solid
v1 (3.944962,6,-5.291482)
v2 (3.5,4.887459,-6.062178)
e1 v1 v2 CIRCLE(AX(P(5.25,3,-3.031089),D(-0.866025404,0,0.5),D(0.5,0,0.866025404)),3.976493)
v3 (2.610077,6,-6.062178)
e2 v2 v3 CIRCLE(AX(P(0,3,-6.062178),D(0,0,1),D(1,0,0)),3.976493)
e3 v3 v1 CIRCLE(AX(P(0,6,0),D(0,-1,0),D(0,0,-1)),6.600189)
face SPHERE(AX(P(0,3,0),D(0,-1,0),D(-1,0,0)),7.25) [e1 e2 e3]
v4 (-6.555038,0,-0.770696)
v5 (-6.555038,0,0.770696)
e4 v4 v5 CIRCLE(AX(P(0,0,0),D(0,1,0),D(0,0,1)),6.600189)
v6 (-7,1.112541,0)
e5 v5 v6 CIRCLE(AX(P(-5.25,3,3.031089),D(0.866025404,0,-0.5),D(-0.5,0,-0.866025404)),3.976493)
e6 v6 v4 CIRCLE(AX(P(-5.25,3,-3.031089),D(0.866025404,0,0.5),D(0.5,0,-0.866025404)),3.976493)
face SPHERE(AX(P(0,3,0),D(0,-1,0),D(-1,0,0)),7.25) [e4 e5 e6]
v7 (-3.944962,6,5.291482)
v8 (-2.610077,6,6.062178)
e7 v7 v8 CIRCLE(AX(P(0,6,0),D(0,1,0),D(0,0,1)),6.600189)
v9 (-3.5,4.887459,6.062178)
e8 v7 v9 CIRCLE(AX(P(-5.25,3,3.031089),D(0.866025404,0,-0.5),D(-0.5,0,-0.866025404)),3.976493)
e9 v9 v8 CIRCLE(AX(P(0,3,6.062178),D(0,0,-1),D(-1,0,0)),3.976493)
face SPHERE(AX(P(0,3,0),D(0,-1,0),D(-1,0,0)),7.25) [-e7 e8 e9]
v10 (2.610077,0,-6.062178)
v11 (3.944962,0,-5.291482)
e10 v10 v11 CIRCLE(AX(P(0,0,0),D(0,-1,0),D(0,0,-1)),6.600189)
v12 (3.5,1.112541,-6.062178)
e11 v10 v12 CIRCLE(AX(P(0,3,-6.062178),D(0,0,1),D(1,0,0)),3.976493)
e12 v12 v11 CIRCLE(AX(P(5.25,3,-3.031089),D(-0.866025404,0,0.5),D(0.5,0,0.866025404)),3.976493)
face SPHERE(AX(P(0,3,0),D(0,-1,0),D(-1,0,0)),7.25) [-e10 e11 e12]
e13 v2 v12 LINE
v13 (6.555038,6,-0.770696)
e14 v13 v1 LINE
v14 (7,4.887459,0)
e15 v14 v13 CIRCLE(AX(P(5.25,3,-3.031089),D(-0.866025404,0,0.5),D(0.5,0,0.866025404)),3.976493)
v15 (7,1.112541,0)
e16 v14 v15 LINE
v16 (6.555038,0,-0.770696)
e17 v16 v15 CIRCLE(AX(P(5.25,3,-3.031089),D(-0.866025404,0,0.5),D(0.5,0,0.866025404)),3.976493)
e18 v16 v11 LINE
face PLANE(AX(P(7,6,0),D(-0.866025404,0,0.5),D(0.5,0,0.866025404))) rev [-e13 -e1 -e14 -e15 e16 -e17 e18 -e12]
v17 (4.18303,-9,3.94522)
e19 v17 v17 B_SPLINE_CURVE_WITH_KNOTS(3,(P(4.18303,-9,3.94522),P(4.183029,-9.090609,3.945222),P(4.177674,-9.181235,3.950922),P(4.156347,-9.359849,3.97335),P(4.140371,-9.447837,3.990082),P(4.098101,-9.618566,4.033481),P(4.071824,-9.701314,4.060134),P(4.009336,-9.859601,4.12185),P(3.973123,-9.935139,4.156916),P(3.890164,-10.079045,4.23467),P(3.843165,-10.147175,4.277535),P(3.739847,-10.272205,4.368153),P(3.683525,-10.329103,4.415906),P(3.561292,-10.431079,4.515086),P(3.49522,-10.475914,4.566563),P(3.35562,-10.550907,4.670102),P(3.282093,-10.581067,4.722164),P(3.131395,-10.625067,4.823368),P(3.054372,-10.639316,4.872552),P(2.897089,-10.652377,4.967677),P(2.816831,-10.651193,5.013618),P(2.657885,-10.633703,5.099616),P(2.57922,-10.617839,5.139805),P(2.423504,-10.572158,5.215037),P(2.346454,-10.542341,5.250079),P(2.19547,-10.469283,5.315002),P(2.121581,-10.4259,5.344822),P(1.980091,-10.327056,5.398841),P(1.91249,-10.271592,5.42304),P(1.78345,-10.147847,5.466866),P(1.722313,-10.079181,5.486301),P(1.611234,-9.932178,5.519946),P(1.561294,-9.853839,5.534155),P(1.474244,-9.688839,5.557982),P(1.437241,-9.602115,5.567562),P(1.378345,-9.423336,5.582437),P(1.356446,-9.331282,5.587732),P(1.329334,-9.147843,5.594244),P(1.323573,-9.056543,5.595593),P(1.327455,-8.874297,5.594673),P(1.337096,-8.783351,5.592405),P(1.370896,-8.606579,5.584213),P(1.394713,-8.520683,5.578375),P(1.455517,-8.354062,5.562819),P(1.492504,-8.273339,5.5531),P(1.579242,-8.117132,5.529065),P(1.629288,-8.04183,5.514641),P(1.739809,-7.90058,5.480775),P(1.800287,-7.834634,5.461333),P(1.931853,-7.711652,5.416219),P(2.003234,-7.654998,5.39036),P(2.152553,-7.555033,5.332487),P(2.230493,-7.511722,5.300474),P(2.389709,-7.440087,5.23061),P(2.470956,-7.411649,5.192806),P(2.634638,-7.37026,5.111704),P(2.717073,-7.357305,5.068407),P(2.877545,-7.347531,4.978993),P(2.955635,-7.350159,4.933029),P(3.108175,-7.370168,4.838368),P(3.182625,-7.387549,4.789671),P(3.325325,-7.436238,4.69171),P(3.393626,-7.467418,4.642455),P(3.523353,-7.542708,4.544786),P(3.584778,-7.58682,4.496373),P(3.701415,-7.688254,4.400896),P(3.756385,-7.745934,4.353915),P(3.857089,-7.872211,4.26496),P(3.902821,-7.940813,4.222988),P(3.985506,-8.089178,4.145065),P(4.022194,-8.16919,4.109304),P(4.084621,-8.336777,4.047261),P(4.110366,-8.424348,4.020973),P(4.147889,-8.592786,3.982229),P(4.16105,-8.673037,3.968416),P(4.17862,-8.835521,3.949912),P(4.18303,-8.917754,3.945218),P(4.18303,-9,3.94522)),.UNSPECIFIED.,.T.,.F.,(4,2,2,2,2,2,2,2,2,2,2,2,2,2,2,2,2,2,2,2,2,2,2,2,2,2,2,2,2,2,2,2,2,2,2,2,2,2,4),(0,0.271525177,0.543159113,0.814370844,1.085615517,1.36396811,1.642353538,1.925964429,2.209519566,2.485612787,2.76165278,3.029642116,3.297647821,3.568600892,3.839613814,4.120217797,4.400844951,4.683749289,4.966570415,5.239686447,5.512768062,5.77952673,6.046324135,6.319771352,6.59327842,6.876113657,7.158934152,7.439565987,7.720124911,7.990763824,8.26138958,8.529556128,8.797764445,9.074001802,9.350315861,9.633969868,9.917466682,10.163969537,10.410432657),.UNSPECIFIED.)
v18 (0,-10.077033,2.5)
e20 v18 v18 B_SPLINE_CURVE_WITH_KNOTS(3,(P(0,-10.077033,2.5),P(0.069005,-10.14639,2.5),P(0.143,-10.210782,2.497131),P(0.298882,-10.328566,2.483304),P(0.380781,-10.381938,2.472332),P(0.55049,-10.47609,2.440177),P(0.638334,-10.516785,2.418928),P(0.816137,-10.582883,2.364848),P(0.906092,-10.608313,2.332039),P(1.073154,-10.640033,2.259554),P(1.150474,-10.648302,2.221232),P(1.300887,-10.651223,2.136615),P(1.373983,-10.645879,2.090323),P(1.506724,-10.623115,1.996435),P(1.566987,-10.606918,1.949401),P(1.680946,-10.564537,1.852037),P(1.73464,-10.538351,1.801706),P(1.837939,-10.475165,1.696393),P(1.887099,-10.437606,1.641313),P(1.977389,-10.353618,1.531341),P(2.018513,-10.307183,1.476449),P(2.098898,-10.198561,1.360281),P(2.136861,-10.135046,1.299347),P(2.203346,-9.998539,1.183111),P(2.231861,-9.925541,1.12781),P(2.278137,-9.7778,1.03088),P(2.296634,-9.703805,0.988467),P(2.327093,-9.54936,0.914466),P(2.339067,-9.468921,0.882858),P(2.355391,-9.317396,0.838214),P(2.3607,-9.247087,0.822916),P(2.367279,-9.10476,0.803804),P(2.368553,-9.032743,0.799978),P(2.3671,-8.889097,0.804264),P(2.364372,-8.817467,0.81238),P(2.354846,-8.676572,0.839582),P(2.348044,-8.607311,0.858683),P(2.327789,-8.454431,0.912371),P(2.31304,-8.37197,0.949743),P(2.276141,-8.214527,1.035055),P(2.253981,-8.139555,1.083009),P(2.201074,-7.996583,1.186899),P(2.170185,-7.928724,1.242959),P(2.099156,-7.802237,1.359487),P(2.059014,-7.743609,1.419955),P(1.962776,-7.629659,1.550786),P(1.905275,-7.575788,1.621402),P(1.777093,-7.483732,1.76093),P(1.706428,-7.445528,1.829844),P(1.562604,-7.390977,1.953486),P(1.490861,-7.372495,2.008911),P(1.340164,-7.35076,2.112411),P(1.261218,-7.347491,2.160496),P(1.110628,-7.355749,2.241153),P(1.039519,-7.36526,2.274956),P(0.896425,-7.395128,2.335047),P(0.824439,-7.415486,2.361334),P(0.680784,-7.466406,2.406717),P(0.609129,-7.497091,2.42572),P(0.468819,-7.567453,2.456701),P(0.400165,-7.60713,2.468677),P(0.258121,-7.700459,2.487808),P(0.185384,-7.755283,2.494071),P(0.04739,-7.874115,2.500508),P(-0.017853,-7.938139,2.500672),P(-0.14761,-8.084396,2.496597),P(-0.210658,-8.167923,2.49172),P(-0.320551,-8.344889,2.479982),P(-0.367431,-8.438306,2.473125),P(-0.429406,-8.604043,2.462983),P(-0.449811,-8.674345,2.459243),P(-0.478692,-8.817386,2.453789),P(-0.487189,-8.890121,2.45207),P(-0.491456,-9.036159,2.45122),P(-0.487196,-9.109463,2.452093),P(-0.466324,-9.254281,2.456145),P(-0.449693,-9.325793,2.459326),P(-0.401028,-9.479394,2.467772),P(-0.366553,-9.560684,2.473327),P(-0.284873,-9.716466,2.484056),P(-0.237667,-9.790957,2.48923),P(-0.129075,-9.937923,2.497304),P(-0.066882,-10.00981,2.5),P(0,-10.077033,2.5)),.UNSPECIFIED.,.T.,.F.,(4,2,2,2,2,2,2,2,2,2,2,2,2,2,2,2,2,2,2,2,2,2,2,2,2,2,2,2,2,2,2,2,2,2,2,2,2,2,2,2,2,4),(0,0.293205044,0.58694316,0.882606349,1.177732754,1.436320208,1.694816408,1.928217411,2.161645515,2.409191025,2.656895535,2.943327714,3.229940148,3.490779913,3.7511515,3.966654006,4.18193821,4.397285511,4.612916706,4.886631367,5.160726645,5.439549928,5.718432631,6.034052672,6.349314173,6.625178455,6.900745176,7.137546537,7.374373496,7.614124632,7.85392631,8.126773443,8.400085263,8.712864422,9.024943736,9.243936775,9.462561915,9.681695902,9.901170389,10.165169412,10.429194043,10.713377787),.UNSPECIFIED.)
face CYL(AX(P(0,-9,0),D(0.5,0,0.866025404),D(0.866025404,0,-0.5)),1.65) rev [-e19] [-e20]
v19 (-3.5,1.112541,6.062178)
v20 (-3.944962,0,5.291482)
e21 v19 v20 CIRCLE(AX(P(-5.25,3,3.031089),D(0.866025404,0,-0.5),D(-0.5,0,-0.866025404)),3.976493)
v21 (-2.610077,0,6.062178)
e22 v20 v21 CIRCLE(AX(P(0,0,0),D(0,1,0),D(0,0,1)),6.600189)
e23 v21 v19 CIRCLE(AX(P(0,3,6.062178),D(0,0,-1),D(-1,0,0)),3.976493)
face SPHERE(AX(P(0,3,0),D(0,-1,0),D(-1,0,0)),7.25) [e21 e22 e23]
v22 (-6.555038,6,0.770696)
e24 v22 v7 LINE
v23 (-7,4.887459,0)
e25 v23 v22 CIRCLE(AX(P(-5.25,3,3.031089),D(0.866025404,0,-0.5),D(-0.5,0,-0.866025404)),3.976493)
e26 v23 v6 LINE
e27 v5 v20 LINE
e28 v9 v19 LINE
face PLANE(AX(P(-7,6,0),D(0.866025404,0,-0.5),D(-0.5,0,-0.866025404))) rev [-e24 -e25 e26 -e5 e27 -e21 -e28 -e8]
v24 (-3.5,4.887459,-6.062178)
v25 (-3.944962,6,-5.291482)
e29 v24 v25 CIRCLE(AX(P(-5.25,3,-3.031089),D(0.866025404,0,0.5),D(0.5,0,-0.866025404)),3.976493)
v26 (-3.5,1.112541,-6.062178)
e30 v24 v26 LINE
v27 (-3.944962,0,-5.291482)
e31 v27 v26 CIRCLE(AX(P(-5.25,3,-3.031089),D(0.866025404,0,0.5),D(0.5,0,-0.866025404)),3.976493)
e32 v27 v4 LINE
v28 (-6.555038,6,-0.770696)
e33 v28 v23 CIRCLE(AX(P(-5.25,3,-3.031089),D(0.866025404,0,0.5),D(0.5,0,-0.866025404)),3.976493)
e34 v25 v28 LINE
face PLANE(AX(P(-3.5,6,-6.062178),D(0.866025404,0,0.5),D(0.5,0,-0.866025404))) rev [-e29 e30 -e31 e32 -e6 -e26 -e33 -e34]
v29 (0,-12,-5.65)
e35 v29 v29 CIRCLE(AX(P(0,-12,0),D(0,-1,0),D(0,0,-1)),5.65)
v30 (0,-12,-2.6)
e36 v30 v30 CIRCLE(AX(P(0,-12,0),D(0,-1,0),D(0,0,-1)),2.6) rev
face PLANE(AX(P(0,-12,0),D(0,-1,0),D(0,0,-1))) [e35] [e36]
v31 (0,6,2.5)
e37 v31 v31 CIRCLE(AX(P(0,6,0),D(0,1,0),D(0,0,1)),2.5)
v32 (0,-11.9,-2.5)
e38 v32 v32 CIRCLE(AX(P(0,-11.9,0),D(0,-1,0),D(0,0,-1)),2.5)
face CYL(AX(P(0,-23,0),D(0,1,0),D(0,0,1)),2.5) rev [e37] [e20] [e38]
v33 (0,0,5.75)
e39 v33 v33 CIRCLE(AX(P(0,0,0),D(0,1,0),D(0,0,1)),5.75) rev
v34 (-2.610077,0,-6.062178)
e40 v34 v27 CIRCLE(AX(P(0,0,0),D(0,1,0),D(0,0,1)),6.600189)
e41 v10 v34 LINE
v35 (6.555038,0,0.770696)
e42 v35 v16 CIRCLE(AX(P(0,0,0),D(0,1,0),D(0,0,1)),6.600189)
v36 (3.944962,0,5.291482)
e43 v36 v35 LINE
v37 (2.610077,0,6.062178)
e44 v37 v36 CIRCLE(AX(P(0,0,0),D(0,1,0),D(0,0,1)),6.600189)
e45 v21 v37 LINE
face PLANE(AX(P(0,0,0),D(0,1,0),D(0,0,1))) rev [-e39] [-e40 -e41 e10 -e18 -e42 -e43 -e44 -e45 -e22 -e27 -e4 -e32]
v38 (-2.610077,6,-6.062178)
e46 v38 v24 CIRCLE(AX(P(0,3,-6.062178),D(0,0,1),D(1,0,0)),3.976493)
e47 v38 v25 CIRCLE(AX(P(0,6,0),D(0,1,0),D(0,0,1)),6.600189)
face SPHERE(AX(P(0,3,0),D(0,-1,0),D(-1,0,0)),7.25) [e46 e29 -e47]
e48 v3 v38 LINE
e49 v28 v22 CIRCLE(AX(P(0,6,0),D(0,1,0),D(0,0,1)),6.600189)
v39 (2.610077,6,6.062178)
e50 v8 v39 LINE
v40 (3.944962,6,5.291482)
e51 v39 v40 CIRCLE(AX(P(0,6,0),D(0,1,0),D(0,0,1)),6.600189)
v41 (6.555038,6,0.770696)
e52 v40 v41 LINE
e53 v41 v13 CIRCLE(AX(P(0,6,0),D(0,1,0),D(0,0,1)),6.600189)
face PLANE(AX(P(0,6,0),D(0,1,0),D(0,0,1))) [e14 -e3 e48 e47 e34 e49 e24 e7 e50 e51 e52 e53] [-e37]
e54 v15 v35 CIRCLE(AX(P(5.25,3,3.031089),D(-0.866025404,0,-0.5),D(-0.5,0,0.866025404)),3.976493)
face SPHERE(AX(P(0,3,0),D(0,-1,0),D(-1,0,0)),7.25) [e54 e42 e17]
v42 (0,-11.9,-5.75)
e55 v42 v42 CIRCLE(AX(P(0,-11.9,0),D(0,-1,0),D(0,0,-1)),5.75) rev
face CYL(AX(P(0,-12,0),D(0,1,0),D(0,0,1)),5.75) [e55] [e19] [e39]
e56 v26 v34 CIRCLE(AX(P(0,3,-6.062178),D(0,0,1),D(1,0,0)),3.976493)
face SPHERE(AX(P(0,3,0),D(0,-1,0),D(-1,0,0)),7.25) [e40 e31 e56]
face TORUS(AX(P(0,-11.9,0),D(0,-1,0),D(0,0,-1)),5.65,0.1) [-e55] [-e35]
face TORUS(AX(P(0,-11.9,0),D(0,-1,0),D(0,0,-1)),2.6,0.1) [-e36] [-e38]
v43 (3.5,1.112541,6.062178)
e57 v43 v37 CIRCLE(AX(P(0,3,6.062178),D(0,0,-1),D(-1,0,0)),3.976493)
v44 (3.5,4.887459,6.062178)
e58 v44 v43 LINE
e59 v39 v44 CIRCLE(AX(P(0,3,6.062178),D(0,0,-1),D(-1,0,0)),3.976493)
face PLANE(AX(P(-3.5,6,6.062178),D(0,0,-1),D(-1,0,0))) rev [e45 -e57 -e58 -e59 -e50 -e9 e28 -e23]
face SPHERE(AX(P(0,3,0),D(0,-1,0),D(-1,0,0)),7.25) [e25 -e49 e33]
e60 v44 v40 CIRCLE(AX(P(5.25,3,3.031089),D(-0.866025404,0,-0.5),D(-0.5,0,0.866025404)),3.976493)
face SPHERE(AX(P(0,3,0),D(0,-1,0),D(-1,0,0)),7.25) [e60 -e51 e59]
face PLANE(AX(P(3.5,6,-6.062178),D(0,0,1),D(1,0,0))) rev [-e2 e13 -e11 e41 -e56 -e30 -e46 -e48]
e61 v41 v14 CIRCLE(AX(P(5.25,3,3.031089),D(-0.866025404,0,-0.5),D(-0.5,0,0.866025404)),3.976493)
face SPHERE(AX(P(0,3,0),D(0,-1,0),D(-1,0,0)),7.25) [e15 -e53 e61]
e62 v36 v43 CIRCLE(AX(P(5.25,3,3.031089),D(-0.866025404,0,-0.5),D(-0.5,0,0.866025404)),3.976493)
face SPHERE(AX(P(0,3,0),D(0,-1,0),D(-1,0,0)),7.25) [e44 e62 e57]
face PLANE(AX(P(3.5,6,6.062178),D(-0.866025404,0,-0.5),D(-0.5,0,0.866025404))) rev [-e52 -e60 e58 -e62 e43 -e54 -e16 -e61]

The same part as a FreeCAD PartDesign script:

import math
import FreeCAD as App
import Part
import Sketcher
from FreeCAD import Vector
Q = App.Units.Quantity


def edges_at(feature, points):
    """Names of the edges that pass closest to the given points."""
    edges = feature.Shape.Edges
    near = lambda p: min(range(len(edges)), key=lambda i: edges[i].distToShape(Part.Vertex(*p))[0])
    return sorted({f"Edge{near(p) + 1}" for p in points})

doc = App.newDocument("Part")
body = doc.addObject("PartDesign::Body", "Body")

sketch1 = body.newObject("Sketcher::SketchObject", "Sketch")
sketch1.AttachmentSupport = (doc.getObject("XZ_Plane"), [""])
sketch1.MapMode = "FlatFace"
sketch1.addGeometry(Part.LineSegment(Vector(-3.5, 6.062178, 0), Vector(3.5, 6.062178, 0)), False)
sketch1.addGeometry(Part.LineSegment(Vector(3.5, 6.062178, 0), Vector(7, 0, 0)), False)
sketch1.addGeometry(Part.LineSegment(Vector(7, 0, 0), Vector(3.5, -6.062178, 0)), False)
sketch1.addGeometry(Part.LineSegment(Vector(3.5, -6.062178, 0), Vector(-3.5, -6.062178, 0)), False)
sketch1.addGeometry(Part.LineSegment(Vector(-3.5, -6.062178, 0), Vector(-7, 0, 0)), False)
sketch1.addGeometry(Part.LineSegment(Vector(-7, 0, 0), Vector(-3.5, 6.062178, 0)), False)
sketch1.addConstraint(Sketcher.Constraint("Coincident", 0, 2, 1, 1))
sketch1.addConstraint(Sketcher.Constraint("Coincident", 1, 2, 2, 1))
sketch1.addConstraint(Sketcher.Constraint("Coincident", 2, 2, 3, 1))
sketch1.addConstraint(Sketcher.Constraint("Coincident", 3, 2, 4, 1))
sketch1.addConstraint(Sketcher.Constraint("Coincident", 4, 2, 5, 1))
sketch1.addConstraint(Sketcher.Constraint("Coincident", 5, 2, 0, 1))
sketch1.addConstraint(Sketcher.Constraint("Horizontal", 0))
sketch1.addConstraint(Sketcher.Constraint("Horizontal", 3))
sketch1.addConstraint(Sketcher.Constraint("Symmetric", 0, 2, 3, 2, -1, 1))
sketch1.addConstraint(Sketcher.Constraint("Symmetric", 1, 2, 4, 2, -1, 1))
sketch1.addConstraint(Sketcher.Constraint("PointOnObject", 1, 2, -1))
sketch1.addConstraint(Sketcher.Constraint("Parallel", 2, 5))
sketch1.addConstraint(Sketcher.Constraint("Vertical", 0, 2, 2, 2))
sketch1.addConstraint(Sketcher.Constraint("DistanceX", 0, 1, 0, 2, 7.0))
sketch1.addConstraint(Sketcher.Constraint("Angle", 1, Q("-60 deg")))
sketch1.addConstraint(Sketcher.Constraint("Distance", 1, 7.0))
pad1 = body.newObject("PartDesign::Pad", "Pad")
pad1.Profile = sketch1
pad1.Length = 6
pad1.Reversed = True

sketch2 = body.newObject("Sketcher::SketchObject", "Sketch001")
sketch2.AttachmentSupport = (doc.getObject("XZ_Plane"), [""])
sketch2.MapMode = "FlatFace"
sketch2.addGeometry(Part.Circle(Vector(0, 0, 0), Vector(0, 0, 1), 5.75), False)
sketch2.addConstraint(Sketcher.Constraint("Coincident", 0, 3, -1, 1))
sketch2.addConstraint(Sketcher.Constraint("Diameter", 0, 11.5))
pad2 = body.newObject("PartDesign::Pad", "Pad001")
pad2.Profile = sketch2
pad2.Length = 12

sketch3 = body.newObject("Sketcher::SketchObject", "Sketch002")
sketch3.AttachmentSupport = (doc.getObject("XZ_Plane"), [""])
sketch3.MapMode = "FlatFace"
sketch3.AttachmentOffset = App.Placement(Vector(0, 0, -6), App.Rotation())
sketch3.addGeometry(Part.Circle(Vector(0, 0, 0), Vector(0, 0, 1), 2.5), False)
sketch3.addConstraint(Sketcher.Constraint("Coincident", 0, 3, -1, 1))
sketch3.addConstraint(Sketcher.Constraint("Diameter", 0, 5.0))
pocket1 = body.newObject("PartDesign::Pocket", "Pocket")
pocket1.Profile = sketch3
pocket1.Length = 29
pocket1.Reversed = True

sketch4 = body.newObject("Sketcher::SketchObject", "Sketch003")
sketch4.AttachmentSupport = (doc.getObject("XY_Plane"), [""])
sketch4.MapMode = "FlatFace"
sketch4.addGeometry(Part.LineSegment(Vector(-7, 0, 0), Vector(-6.600189, 0, 0)), False)
sketch4.addGeometry(Part.ArcOfCircle(Part.Circle(Vector(0, 3, 0), Vector(0, 0, 1), 7.25), math.radians(-164.909815), math.radians(-155.556665)), False)
sketch4.addGeometry(Part.LineSegment(Vector(-7, 1.112541, 0), Vector(-7, 0, 0)), False)
sketch4.addGeometry(Part.LineSegment(Vector(-7, 6, 0), Vector(-7, 4.887459, 0)), False)
sketch4.addGeometry(Part.ArcOfCircle(Part.Circle(Vector(0, 3, 0), Vector(0, 0, 1), 7.25), math.radians(155.556665), math.radians(164.909815)), False)
sketch4.addGeometry(Part.LineSegment(Vector(-6.600189, 6, 0), Vector(-7, 6, 0)), False)
sketch4.addConstraint(Sketcher.Constraint("Coincident", 0, 2, 1, 2))
sketch4.addConstraint(Sketcher.Constraint("Coincident", 1, 1, 2, 1))
sketch4.addConstraint(Sketcher.Constraint("Coincident", 2, 2, 0, 1))
sketch4.addConstraint(Sketcher.Constraint("Coincident", 3, 2, 4, 2))
sketch4.addConstraint(Sketcher.Constraint("Coincident", 4, 1, 5, 1))
sketch4.addConstraint(Sketcher.Constraint("Coincident", 5, 2, 3, 1))
sketch4.addConstraint(Sketcher.Constraint("Horizontal", 0))
sketch4.addConstraint(Sketcher.Constraint("Vertical", 2))
sketch4.addConstraint(Sketcher.Constraint("Vertical", 3))
sketch4.addConstraint(Sketcher.Constraint("Horizontal", 5))
sketch4.addConstraint(Sketcher.Constraint("Coincident", 4, 3, 1, 3))
sketch4.addConstraint(Sketcher.Constraint("Equal", 1, 4))
sketch4.addConstraint(Sketcher.Constraint("PointOnObject", 1, 3, -2))
sketch4.addConstraint(Sketcher.Constraint("PointOnObject", 0, 2, -1))
sketch4.addConstraint(Sketcher.Constraint("Vertical", 2, 2, 3, 2))
sketch4.addConstraint(Sketcher.Constraint("Vertical", 0, 2, 4, 1))
sketch4.addConstraint(Sketcher.Constraint("Radius", 1, 7.25))
sketch4.addConstraint(Sketcher.Constraint("DistanceY", -1, 1, 1, 3, 3.0))
sketch4.addConstraint(Sketcher.Constraint("DistanceX", 1, 1, -1, 1, 7.0))
groove = body.newObject("PartDesign::Groove", "Groove")
groove.Profile = sketch4
groove.ReferenceAxis = (sketch4, ["V_Axis"])
groove.Angle = 360

sketch5 = body.newObject("Sketcher::SketchObject", "Sketch004")
sketch5.Placement = App.Placement(Vector(1.75, 0, 3.031089), App.Rotation(Vector(0.866025404, 0, -0.5), Vector(0, 1, 0), Vector(0.5, 0, 0.866025404), "ZXY"))
sketch5.addGeometry(Part.Circle(Vector(0, -9, 0), Vector(0, 0, 1), 1.65), False)
sketch5.addConstraint(Sketcher.Constraint("PointOnObject", 0, 3, -2))
sketch5.addConstraint(Sketcher.Constraint("Diameter", 0, 3.3))
sketch5.addConstraint(Sketcher.Constraint("DistanceY", 0, 3, -1, 1, 9.0))
pocket2 = body.newObject("PartDesign::Pocket", "Pocket001")
pocket2.Profile = sketch5
pocket2.Length = 7
pocket2.Midplane = True
doc.recompute()

fillet = body.newObject("PartDesign::Fillet", "Fillet")
fillet.Base = (pocket2, edges_at(pocket2, [(-5.75, -12, 0), (-2.5, -12, 0)]))
fillet.Radius = 0.1

doc.recompute()
